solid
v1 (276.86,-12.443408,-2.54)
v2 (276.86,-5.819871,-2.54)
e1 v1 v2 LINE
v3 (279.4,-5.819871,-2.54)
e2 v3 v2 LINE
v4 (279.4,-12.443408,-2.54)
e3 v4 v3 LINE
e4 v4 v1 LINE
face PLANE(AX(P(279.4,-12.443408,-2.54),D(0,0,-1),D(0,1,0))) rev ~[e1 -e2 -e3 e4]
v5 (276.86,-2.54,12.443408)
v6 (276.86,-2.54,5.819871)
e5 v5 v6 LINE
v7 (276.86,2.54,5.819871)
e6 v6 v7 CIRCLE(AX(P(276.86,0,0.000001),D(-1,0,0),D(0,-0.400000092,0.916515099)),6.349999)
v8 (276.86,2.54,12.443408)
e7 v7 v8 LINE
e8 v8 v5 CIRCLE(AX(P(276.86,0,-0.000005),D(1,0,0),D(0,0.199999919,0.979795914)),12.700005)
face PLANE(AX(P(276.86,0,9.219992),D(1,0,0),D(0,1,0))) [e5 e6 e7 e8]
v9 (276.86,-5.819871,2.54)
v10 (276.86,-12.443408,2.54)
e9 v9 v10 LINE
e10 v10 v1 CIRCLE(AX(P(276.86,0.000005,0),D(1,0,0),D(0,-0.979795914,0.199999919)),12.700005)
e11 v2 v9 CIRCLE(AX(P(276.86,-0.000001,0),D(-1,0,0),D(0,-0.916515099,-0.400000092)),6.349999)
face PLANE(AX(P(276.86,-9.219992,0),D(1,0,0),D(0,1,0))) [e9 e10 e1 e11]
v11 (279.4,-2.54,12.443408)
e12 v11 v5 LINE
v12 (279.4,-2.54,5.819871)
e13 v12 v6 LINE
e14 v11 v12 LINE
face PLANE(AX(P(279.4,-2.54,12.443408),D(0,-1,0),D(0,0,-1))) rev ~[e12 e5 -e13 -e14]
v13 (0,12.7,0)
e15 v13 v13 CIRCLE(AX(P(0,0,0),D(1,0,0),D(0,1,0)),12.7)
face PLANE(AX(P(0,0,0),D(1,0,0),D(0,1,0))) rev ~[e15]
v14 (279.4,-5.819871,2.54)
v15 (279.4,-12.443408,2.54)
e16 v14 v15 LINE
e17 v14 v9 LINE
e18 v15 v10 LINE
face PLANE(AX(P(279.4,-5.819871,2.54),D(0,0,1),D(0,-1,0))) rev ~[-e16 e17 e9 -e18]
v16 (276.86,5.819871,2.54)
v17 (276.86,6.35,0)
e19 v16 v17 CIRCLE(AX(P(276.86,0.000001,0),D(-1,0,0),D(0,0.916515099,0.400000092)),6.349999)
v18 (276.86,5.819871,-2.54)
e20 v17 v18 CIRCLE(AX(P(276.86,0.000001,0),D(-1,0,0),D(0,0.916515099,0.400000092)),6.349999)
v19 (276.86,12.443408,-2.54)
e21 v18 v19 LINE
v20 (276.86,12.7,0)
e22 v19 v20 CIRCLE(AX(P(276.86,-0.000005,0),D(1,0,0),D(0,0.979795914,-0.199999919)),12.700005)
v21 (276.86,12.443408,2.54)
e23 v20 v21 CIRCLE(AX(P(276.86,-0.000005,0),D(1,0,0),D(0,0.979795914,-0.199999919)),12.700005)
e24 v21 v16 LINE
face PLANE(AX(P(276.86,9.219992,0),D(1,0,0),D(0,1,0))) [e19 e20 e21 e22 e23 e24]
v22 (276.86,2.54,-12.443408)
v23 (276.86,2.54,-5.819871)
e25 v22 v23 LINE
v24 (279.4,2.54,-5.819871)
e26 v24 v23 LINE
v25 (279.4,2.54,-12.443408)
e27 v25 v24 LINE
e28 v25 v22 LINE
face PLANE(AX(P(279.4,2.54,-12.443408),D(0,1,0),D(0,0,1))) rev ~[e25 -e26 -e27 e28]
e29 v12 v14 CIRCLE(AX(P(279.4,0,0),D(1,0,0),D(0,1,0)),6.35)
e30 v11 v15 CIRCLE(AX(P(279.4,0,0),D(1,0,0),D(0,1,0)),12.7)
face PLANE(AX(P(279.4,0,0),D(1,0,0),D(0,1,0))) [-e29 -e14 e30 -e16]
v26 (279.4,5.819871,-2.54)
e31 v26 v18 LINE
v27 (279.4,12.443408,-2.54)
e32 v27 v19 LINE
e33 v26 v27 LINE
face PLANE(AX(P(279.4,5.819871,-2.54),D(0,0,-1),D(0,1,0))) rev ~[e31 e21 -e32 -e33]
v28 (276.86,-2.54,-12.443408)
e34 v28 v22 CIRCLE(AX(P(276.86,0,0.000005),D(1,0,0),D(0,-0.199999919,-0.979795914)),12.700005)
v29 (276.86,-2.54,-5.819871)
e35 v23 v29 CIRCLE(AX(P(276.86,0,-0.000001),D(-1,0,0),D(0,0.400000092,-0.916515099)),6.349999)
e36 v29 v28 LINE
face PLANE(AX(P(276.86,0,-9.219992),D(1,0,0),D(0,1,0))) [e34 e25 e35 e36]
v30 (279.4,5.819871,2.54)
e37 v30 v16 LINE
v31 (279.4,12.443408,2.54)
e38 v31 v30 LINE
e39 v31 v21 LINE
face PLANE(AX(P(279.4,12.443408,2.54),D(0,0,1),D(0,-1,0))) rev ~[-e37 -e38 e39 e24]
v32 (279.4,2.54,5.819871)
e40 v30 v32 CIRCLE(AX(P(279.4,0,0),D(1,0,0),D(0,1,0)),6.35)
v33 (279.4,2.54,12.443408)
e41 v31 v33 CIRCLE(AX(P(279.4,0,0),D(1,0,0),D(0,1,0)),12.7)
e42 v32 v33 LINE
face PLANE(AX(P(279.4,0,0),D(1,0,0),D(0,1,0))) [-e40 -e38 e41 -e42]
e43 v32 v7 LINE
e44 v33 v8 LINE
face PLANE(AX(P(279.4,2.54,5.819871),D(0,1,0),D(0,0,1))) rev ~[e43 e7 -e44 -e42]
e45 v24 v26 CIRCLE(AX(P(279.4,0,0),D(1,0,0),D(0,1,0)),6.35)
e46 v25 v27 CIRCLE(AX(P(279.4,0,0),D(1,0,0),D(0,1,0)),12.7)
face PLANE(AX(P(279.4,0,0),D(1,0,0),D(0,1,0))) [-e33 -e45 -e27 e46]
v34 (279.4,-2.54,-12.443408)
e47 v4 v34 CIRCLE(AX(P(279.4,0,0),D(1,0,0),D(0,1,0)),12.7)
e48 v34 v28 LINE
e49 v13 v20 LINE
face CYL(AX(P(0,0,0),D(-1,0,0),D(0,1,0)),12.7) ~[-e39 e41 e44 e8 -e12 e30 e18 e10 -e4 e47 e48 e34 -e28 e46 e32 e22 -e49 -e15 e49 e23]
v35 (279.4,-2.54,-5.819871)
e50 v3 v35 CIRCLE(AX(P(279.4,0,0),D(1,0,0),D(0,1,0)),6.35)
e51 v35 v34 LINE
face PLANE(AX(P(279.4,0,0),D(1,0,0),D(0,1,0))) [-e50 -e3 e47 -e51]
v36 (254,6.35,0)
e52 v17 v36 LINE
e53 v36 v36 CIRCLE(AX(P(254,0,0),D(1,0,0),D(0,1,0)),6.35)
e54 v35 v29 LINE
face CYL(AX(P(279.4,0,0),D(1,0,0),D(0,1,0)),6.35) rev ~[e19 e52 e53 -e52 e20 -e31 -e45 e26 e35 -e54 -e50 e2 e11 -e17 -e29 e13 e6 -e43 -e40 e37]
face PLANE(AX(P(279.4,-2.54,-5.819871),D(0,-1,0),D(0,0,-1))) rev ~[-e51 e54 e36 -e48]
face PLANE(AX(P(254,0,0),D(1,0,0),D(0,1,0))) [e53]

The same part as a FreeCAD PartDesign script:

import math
import FreeCAD as App
import Part
import Sketcher
Q = App.Units.Quantity

doc = App.newDocument("Part")
body = doc.addObject("PartDesign::Body", "Body")

# Sketch on YZ plane
sketch1 = body.newObject("Sketcher::SketchObject", "Sketch")
sketch1.AttachmentSupport = (doc.getObject("YZ_Plane"), [""])
sketch1.MapMode = "FlatFace"
sketch1.addGeometry(Part.Circle(App.Vector(0, 0, 0), App.Vector(0, 0, 1), 13), False)
sketch1.addConstraint(Sketcher.Constraint("Coincident", 0, 3, -1, 1))
sketch1.addConstraint(Sketcher.Constraint("Diameter", 0, Q("1 in")))
pad1 = body.newObject("PartDesign::Pad", "Pad")
pad1.Profile = sketch1
pad1.Length = Q("11 in")

# Sketch on YZ plane
sketch2 = body.newObject("Sketcher::SketchObject", "Sketch001")
sketch2.AttachmentSupport = (doc.getObject("YZ_Plane"), [""])
sketch2.MapMode = "FlatFace"
sketch2.AttachmentOffset = App.Placement(App.Vector(0, 0, 11 * 25.4), App.Rotation())
sketch2.addGeometry(Part.Circle(App.Vector(0, 0, 0), App.Vector(0, 0, 1), 6), False)
sketch2.addConstraint(Sketcher.Constraint("Coincident", 0, 3, -1, 1))
sketch2.addConstraint(Sketcher.Constraint("Diameter", 0, Q("0.5 in")))
pocket1 = body.newObject("PartDesign::Pocket", "Pocket")
pocket1.Profile = sketch2
pocket1.Length = Q("1 in")

# Sketch on YZ plane
sketch3 = body.newObject("Sketcher::SketchObject", "Sketch002")
sketch3.AttachmentSupport = (doc.getObject("YZ_Plane"), [""])
sketch3.MapMode = "FlatFace"
sketch3.AttachmentOffset = App.Placement(App.Vector(0, 0, 11 * 25.4), App.Rotation())
sketch3.addGeometry(Part.LineSegment(App.Vector(12, 3, 0), App.Vector(6, 3, 0)), False)
sketch3.addGeometry(Part.ArcOfCircle(Part.Circle(App.Vector(0, 0, 0), App.Vector(0, 0, 1), 6), math.radians(-24), math.radians(24)), False)
sketch3.addGeometry(Part.LineSegment(App.Vector(6, -3, 0), App.Vector(12, -3, 0)), False)
sketch3.addGeometry(Part.ArcOfCircle(Part.Circle(App.Vector(0, 0, 0), App.Vector(0, 0, 1), 13), math.radians(-12), math.radians(12)), False)
sketch3.addGeometry(Part.ArcOfCircle(Part.Circle(App.Vector(0, 0, 0), App.Vector(0, 0, 1), 13), math.radians(78), math.radians(102)), False)
sketch3.addGeometry(Part.LineSegment(App.Vector(-3, 12, 0), App.Vector(-3, 6, 0)), False)
sketch3.addGeometry(Part.ArcOfCircle(Part.Circle(App.Vector(0, 0, 0), App.Vector(0, 0, 1), 6), math.radians(66), math.radians(114)), False)
sketch3.addGeometry(Part.LineSegment(App.Vector(3, 6, 0), App.Vector(3, 12, 0)), False)
sketch3.addGeometry(Part.ArcOfCircle(Part.Circle(App.Vector(0, 0, 0), App.Vector(0, 0, 1), 13), math.radians(168), math.radians(192)), False)
sketch3.addGeometry(Part.LineSegment(App.Vector(-12, -3, 0), App.Vector(-6, -3, 0)), False)
sketch3.addGeometry(Part.ArcOfCircle(Part.Circle(App.Vector(0, 0, 0), App.Vector(0, 0, 1), 6), math.radians(156), math.radians(204)), False)
sketch3.addGeometry(Part.LineSegment(App.Vector(-6, 3, 0), App.Vector(-12, 3, 0)), False)
sketch3.addGeometry(Part.ArcOfCircle(Part.Circle(App.Vector(0, 0, 0), App.Vector(0, 0, 1), 6), math.radians(-114), math.radians(-66)), False)
sketch3.addGeometry(Part.LineSegment(App.Vector(-3, -6, 0), App.Vector(-3, -12, 0)), False)
sketch3.addGeometry(Part.ArcOfCircle(Part.Circle(App.Vector(0, 0, 0), App.Vector(0, 0, 1), 13), math.radians(-102), math.radians(-78)), False)
sketch3.addGeometry(Part.LineSegment(App.Vector(3, -12, 0), App.Vector(3, -6, 0)), False)
sketch3.addConstraint(Sketcher.Constraint("Coincident", 0, 2, 1, 2))
sketch3.addConstraint(Sketcher.Constraint("Coincident", 1, 1, 2, 1))
sketch3.addConstraint(Sketcher.Constraint("Coincident", 2, 2, 3, 1))
sketch3.addConstraint(Sketcher.Constraint("Coincident", 3, 2, 0, 1))
sketch3.addConstraint(Sketcher.Constraint("Coincident", 4, 2, 5, 1))
sketch3.addConstraint(Sketcher.Constraint("Coincident", 5, 2, 6, 2))
sketch3.addConstraint(Sketcher.Constraint("Coincident", 6, 1, 7, 1))
sketch3.addConstraint(Sketcher.Constraint("Coincident", 7, 2, 4, 1))
sketch3.addConstraint(Sketcher.Constraint("Coincident", 8, 2, 9, 1))
sketch3.addConstraint(Sketcher.Constraint("Coincident", 9, 2, 10, 2))
sketch3.addConstraint(Sketcher.Constraint("Coincident", 10, 1, 11, 1))
sketch3.addConstraint(Sketcher.Constraint("Coincident", 11, 2, 8, 1))
sketch3.addConstraint(Sketcher.Constraint("Coincident", 12, 1, 13, 1))
sketch3.addConstraint(Sketcher.Constraint("Coincident", 13, 2, 14, 1))
sketch3.addConstraint(Sketcher.Constraint("Coincident", 14, 2, 15, 1))
sketch3.addConstraint(Sketcher.Constraint("Coincident", 15, 2, 12, 2))
sketch3.addConstraint(Sketcher.Constraint("Horizontal", 0))
sketch3.addConstraint(Sketcher.Constraint("Horizontal", 2))
sketch3.addConstraint(Sketcher.Constraint("Vertical", 5))
sketch3.addConstraint(Sketcher.Constraint("Vertical", 7))
sketch3.addConstraint(Sketcher.Constraint("Horizontal", 9))
sketch3.addConstraint(Sketcher.Constraint("Horizontal", 11))
sketch3.addConstraint(Sketcher.Constraint("Vertical", 13))
sketch3.addConstraint(Sketcher.Constraint("Vertical", 15))
sketch3.addConstraint(Sketcher.Constraint("Coincident", 1, 3, -1, 1))
sketch3.addConstraint(Sketcher.Constraint("Coincident", 3, 3, -1, 1))
sketch3.addConstraint(Sketcher.Constraint("Coincident", 4, 3, -1, 1))
sketch3.addConstraint(Sketcher.Constraint("Coincident", 6, 3, -1, 1))
sketch3.addConstraint(Sketcher.Constraint("Coincident", 8, 3, -1, 1))
sketch3.addConstraint(Sketcher.Constraint("Coincident", 10, 3, -1, 1))
sketch3.addConstraint(Sketcher.Constraint("Coincident", 12, 3, -1, 1))
sketch3.addConstraint(Sketcher.Constraint("Coincident", 14, 3, -1, 1))
sketch3.addConstraint(Sketcher.Constraint("Equal", 3, 4))
sketch3.addConstraint(Sketcher.Constraint("Equal", 1, 6))
sketch3.addConstraint(Sketcher.Constraint("Equal", 4, 8))
sketch3.addConstraint(Sketcher.Constraint("Equal", 6, 10))
sketch3.addConstraint(Sketcher.Constraint("Equal", 10, 12))
sketch3.addConstraint(Sketcher.Constraint("Equal", 8, 14))
sketch3.addConstraint(Sketcher.Constraint("Horizontal", 5, 2, 6, 1))
sketch3.addConstraint(Sketcher.Constraint("Horizontal", 2, 2, 8, 2))
sketch3.addConstraint(Sketcher.Constraint("Horizontal", 3, 2, 10, 1))
sketch3.addConstraint(Sketcher.Constraint("Horizontal", 13, 2, 14, 2))
sketch3.addConstraint(Sketcher.Constraint("Vertical", 0, 2, 1, 1))
sketch3.addConstraint(Sketcher.Constraint("Vertical", 5, 2, 12, 1))
sketch3.addConstraint(Sketcher.Constraint("Equal", 11, 5))
sketch3.addConstraint(Sketcher.Constraint("Radius", 1, Q("0.2499999 in")))
sketch3.addConstraint(Sketcher.Constraint("DistanceY", -1, 1, 0, 2, Q("0.1 in")))
sketch3.addConstraint(Sketcher.Constraint("Radius", 3, Q("12.700005 mm")))
pocket2 = body.newObject("PartDesign::Pocket", "Pocket001")
pocket2.Profile = sketch3
pocket2.Length = Q("0.1 in")

doc.recompute()
